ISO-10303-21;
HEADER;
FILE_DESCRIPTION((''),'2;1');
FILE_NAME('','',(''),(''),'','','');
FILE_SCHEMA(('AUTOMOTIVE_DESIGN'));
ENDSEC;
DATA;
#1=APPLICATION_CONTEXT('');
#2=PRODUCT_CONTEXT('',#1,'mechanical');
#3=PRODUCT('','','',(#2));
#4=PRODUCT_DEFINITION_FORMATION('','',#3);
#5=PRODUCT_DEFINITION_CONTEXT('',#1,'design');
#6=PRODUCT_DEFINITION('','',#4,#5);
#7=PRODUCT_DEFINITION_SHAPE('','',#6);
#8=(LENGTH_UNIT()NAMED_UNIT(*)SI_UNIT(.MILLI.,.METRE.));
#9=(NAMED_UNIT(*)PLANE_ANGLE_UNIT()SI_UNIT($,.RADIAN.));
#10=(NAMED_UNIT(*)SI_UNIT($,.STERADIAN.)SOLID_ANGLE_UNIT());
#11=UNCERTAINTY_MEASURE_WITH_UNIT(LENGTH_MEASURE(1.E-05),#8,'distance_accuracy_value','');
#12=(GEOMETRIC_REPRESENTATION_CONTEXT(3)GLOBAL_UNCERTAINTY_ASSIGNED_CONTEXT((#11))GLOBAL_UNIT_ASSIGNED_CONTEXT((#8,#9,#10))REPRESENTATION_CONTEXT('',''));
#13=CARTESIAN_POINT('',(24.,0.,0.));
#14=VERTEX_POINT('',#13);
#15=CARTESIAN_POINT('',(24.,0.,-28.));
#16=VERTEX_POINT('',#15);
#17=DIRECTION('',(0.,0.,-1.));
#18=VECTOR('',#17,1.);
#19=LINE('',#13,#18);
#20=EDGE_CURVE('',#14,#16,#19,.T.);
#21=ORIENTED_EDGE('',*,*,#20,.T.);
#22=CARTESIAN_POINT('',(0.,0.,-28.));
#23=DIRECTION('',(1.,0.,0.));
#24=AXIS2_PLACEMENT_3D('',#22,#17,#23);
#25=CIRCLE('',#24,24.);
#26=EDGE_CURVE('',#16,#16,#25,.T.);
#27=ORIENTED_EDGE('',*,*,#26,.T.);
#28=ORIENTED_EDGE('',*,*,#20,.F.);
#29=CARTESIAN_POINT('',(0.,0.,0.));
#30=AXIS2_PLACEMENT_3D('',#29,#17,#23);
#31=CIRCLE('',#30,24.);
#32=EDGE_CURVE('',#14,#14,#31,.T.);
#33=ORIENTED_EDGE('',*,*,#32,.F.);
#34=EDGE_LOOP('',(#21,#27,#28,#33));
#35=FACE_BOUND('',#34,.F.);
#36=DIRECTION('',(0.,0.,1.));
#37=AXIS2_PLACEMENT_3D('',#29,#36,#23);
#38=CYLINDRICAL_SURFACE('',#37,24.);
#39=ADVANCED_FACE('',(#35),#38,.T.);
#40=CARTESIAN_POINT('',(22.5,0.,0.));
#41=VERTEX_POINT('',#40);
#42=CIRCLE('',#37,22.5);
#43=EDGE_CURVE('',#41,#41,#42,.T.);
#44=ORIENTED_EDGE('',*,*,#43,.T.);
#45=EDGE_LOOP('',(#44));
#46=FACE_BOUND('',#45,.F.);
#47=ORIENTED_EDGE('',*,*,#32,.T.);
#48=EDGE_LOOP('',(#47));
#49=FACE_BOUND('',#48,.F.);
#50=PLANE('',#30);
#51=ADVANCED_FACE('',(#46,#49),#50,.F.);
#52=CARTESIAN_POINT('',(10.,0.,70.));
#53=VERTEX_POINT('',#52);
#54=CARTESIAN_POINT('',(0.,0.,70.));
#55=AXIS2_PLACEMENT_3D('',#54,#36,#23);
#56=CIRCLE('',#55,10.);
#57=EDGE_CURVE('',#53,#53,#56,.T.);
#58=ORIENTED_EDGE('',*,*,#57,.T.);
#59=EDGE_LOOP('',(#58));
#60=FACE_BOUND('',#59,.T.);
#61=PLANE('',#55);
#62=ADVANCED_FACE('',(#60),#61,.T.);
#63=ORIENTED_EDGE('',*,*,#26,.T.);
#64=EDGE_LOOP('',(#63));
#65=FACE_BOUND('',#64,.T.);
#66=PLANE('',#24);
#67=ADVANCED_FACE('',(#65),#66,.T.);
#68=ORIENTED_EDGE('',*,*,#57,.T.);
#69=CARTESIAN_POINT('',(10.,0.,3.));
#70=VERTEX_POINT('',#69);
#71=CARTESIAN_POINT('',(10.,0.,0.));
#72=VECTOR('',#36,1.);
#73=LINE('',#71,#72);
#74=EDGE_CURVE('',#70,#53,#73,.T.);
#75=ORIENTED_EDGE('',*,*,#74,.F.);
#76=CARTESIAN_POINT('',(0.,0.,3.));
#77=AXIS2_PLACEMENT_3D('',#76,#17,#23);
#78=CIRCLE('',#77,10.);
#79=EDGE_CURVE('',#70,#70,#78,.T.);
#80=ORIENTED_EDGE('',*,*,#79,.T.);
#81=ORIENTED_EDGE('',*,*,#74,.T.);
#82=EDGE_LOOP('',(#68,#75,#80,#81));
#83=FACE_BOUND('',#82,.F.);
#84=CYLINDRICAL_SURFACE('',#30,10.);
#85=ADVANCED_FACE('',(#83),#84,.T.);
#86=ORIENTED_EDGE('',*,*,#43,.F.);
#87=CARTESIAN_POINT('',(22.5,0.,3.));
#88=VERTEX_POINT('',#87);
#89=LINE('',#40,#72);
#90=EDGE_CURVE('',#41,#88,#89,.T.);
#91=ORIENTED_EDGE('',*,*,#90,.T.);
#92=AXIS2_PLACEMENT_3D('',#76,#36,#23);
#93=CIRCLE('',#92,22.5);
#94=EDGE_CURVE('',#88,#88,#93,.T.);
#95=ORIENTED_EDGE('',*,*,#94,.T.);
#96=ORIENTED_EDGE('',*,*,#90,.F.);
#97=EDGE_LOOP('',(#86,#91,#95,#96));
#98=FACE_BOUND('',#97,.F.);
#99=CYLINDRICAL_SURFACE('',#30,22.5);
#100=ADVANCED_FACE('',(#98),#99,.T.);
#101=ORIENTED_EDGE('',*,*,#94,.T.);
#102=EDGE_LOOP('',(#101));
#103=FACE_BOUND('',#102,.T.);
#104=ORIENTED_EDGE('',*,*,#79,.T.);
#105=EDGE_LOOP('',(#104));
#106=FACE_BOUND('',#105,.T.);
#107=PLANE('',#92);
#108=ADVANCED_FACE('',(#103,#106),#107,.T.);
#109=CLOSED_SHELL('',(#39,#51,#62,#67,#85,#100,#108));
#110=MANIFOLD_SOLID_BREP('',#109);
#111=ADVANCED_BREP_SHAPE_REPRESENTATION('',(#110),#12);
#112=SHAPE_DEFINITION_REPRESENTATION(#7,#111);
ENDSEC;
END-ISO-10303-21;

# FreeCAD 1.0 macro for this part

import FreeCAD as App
import Part
import Sketcher
from FreeCAD import Vector
Q = App.Units.Quantity

doc = App.newDocument("Part")
params = doc.addObject("Spreadsheet::Sheet", "Params")
for row, (alias, value) in enumerate([
    ("sketch1_diameter", "45 mm"),
    ("pad1_length", "3 mm"),
    ("sketch2_diameter", "20 mm"),
    ("pad2_length", "70 mm"),
    ("sketch3_diameter", "48 mm"),
    ("pad3_length", "28 mm"),
], start=1):
    params.set(f"A{row}", alias)
    params.set(f"B{row}", "=" + value)
    params.setAlias(f"B{row}", alias)

body = doc.addObject("PartDesign::Body", "Body")

sketch1 = body.newObject("Sketcher::SketchObject", "Sketch")
sketch1.AttachmentSupport = (doc.getObject("XY_Plane"), [""])
sketch1.MapMode = "FlatFace"
sketch1.addGeometry(Part.Circle(Vector(0, 0, 0), Vector(0, 0, 1), 22), False)
sketch1.addConstraint(Sketcher.Constraint("Coincident", 0, 3, -1, 1))
sketch1.addConstraint(Sketcher.Constraint("Diameter", 0, Q("45 mm")))
sketch1.setExpression("Constraints[1]", "Params.sketch1_diameter")
pad1 = body.newObject("PartDesign::Pad", "Pad")
pad1.Profile = sketch1
pad1.setExpression("Length", "Params.pad1_length")

sketch2 = body.newObject("Sketcher::SketchObject", "Sketch001")
sketch2.AttachmentSupport = (doc.getObject("XY_Plane"), [""])
sketch2.MapMode = "FlatFace"
sketch2.addGeometry(Part.Circle(Vector(0, 0, 0), Vector(0, 0, 1), 10), False)
sketch2.addConstraint(Sketcher.Constraint("Coincident", 0, 3, -1, 1))
sketch2.addConstraint(Sketcher.Constraint("Diameter", 0, Q("20 mm")))
sketch2.setExpression("Constraints[1]", "Params.sketch2_diameter")
pad2 = body.newObject("PartDesign::Pad", "Pad001")
pad2.Profile = sketch2
pad2.setExpression("Length", "Params.pad2_length")

sketch3 = body.newObject("Sketcher::SketchObject", "Sketch002")
sketch3.AttachmentSupport = (doc.getObject("XY_Plane"), [""])
sketch3.MapMode = "FlatFace"
sketch3.addGeometry(Part.Circle(Vector(0, 0, 0), Vector(0, 0, 1), 24), False)
sketch3.addConstraint(Sketcher.Constraint("Coincident", 0, 3, -1, 1))
sketch3.addConstraint(Sketcher.Constraint("Diameter", 0, Q("48 mm")))
sketch3.setExpression("Constraints[1]", "Params.sketch3_diameter")
pad3 = body.newObject("PartDesign::Pad", "Pad002")
pad3.Profile = sketch3
pad3.setExpression("Length", "Params.pad3_length")
pad3.Reversed = True

doc.recompute()
